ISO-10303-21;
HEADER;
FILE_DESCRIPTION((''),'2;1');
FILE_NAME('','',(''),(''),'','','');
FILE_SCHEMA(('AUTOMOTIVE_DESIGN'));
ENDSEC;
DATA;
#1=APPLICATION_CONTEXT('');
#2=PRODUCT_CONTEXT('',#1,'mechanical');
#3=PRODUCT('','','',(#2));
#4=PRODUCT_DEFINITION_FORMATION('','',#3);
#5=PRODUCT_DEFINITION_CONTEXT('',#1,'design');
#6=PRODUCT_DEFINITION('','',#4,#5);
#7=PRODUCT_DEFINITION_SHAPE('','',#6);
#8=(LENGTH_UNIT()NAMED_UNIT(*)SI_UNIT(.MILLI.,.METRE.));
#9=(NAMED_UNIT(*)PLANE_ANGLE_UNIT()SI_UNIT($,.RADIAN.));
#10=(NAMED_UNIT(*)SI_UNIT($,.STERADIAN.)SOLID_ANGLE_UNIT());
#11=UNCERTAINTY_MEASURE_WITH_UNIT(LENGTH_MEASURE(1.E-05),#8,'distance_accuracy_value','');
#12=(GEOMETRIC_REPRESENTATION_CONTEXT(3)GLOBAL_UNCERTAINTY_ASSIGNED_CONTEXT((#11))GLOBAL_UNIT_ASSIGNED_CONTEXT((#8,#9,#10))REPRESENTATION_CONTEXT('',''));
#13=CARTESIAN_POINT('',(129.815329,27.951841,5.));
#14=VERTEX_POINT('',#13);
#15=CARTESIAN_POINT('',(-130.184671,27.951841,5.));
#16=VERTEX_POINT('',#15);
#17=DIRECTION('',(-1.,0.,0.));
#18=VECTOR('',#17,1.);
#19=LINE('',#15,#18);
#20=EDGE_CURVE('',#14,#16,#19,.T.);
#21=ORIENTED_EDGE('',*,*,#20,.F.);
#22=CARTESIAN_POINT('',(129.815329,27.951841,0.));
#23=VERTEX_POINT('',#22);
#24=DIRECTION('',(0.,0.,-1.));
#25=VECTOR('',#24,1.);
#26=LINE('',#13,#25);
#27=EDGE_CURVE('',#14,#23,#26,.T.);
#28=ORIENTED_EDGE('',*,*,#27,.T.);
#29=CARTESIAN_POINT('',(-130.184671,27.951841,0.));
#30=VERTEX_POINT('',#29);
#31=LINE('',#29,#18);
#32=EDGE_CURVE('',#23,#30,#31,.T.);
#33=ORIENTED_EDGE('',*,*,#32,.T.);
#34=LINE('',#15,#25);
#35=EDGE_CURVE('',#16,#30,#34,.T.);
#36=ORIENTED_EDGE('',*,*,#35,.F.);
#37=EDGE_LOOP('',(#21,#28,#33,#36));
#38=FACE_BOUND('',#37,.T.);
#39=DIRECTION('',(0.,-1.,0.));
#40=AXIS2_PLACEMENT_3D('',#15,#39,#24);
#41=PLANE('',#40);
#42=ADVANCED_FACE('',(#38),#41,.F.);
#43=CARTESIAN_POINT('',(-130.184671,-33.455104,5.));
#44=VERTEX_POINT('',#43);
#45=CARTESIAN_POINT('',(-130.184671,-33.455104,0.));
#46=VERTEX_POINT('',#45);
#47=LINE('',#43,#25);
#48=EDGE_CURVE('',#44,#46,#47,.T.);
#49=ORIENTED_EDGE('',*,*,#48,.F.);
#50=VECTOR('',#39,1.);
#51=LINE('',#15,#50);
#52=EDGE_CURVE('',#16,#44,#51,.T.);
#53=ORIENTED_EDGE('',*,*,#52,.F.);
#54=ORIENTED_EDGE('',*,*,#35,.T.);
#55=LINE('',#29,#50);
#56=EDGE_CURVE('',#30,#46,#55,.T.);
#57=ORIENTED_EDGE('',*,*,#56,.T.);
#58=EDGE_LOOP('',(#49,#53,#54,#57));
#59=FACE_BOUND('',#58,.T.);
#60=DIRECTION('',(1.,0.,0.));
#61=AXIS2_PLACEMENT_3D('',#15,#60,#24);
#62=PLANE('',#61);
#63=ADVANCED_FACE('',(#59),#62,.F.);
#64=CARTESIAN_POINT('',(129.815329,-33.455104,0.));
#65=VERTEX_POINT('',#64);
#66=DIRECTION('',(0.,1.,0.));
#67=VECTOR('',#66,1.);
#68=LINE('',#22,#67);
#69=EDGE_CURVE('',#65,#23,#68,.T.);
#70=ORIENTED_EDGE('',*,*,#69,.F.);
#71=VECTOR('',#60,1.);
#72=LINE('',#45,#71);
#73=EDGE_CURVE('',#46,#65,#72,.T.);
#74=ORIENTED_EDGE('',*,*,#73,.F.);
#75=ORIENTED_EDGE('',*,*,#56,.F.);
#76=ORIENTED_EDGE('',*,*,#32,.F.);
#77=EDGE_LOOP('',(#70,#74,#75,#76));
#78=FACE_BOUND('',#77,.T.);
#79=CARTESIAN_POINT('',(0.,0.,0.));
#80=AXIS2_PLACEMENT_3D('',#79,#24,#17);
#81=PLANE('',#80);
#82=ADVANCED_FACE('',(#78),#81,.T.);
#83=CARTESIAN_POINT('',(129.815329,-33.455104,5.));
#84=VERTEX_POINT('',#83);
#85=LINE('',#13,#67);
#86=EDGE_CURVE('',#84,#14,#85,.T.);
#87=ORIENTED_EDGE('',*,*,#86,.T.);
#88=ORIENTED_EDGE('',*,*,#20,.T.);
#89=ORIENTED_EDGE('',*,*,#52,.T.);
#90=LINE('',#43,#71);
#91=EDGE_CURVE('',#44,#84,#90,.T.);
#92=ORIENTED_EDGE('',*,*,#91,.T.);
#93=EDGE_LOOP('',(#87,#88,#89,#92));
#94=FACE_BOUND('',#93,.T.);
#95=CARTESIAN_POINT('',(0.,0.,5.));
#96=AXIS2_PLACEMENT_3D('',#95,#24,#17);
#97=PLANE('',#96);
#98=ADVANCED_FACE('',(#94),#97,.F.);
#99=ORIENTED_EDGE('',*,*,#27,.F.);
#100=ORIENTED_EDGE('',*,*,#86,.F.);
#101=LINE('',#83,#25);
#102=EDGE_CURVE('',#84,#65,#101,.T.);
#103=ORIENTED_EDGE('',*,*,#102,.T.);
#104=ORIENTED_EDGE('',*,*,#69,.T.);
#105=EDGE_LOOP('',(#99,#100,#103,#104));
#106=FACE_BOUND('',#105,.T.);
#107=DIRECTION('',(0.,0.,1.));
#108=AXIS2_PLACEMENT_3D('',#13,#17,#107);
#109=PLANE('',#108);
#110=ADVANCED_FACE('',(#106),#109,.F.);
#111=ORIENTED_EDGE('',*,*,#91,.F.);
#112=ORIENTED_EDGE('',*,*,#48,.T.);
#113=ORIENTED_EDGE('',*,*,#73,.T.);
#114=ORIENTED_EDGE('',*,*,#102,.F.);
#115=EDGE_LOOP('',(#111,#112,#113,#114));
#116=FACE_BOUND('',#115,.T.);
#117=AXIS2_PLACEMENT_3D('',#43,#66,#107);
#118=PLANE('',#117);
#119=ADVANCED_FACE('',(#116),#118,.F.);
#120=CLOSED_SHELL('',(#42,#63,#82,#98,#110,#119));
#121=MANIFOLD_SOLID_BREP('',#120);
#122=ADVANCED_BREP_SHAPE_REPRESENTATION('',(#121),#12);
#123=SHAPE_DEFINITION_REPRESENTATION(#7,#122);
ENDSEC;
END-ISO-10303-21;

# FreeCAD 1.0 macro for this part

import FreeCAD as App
import Part
import Sketcher
from FreeCAD import Vector


def add_polygon(sketch, points):
    """Adds a closed chain of lines whose ends are joined by coincident constraints."""
    first, n = sketch.GeometryCount, len(points)
    for a, b in zip(points, points[1:] + points[:1]):
        sketch.addGeometry(Part.LineSegment(App.Vector(*a, 0), App.Vector(*b, 0)), False)
    for i in range(n):
        sketch.addConstraint(Sketcher.Constraint("Coincident", first + i, 2, first + (i + 1) % n, 1))

doc = App.newDocument("Part")
body = doc.addObject("PartDesign::Body", "Body")

sketch1 = body.newObject("Sketcher::SketchObject", "Sketch")
sketch1.AttachmentSupport = (doc.getObject("XY_Plane"), [""])
sketch1.MapMode = "FlatFace"
add_polygon(sketch1, [(-130, 28), (-130, -33), (130, -33), (130, 28)])
sketch1.addConstraint([
    Sketcher.Constraint("Vertical", 0),
    Sketcher.Constraint("Horizontal", 1),
    Sketcher.Constraint("Vertical", 2),
    Sketcher.Constraint("Horizontal", 3),
    Sketcher.Constraint("DistanceX", 1, 1, 1, 2, 260.0),
    Sketcher.Constraint("DistanceY", 0, 2, 0, 1, 61.406944),
    Sketcher.Constraint("DistanceX", 0, 2, -1, 1, 130.184671),
    Sketcher.Constraint("DistanceY", -1, 1, 2, 2, 27.951841),
])
pad1 = body.newObject("PartDesign::Pad", "Pad")
pad1.Profile = sketch1
pad1.Length = 5

doc.recompute()
